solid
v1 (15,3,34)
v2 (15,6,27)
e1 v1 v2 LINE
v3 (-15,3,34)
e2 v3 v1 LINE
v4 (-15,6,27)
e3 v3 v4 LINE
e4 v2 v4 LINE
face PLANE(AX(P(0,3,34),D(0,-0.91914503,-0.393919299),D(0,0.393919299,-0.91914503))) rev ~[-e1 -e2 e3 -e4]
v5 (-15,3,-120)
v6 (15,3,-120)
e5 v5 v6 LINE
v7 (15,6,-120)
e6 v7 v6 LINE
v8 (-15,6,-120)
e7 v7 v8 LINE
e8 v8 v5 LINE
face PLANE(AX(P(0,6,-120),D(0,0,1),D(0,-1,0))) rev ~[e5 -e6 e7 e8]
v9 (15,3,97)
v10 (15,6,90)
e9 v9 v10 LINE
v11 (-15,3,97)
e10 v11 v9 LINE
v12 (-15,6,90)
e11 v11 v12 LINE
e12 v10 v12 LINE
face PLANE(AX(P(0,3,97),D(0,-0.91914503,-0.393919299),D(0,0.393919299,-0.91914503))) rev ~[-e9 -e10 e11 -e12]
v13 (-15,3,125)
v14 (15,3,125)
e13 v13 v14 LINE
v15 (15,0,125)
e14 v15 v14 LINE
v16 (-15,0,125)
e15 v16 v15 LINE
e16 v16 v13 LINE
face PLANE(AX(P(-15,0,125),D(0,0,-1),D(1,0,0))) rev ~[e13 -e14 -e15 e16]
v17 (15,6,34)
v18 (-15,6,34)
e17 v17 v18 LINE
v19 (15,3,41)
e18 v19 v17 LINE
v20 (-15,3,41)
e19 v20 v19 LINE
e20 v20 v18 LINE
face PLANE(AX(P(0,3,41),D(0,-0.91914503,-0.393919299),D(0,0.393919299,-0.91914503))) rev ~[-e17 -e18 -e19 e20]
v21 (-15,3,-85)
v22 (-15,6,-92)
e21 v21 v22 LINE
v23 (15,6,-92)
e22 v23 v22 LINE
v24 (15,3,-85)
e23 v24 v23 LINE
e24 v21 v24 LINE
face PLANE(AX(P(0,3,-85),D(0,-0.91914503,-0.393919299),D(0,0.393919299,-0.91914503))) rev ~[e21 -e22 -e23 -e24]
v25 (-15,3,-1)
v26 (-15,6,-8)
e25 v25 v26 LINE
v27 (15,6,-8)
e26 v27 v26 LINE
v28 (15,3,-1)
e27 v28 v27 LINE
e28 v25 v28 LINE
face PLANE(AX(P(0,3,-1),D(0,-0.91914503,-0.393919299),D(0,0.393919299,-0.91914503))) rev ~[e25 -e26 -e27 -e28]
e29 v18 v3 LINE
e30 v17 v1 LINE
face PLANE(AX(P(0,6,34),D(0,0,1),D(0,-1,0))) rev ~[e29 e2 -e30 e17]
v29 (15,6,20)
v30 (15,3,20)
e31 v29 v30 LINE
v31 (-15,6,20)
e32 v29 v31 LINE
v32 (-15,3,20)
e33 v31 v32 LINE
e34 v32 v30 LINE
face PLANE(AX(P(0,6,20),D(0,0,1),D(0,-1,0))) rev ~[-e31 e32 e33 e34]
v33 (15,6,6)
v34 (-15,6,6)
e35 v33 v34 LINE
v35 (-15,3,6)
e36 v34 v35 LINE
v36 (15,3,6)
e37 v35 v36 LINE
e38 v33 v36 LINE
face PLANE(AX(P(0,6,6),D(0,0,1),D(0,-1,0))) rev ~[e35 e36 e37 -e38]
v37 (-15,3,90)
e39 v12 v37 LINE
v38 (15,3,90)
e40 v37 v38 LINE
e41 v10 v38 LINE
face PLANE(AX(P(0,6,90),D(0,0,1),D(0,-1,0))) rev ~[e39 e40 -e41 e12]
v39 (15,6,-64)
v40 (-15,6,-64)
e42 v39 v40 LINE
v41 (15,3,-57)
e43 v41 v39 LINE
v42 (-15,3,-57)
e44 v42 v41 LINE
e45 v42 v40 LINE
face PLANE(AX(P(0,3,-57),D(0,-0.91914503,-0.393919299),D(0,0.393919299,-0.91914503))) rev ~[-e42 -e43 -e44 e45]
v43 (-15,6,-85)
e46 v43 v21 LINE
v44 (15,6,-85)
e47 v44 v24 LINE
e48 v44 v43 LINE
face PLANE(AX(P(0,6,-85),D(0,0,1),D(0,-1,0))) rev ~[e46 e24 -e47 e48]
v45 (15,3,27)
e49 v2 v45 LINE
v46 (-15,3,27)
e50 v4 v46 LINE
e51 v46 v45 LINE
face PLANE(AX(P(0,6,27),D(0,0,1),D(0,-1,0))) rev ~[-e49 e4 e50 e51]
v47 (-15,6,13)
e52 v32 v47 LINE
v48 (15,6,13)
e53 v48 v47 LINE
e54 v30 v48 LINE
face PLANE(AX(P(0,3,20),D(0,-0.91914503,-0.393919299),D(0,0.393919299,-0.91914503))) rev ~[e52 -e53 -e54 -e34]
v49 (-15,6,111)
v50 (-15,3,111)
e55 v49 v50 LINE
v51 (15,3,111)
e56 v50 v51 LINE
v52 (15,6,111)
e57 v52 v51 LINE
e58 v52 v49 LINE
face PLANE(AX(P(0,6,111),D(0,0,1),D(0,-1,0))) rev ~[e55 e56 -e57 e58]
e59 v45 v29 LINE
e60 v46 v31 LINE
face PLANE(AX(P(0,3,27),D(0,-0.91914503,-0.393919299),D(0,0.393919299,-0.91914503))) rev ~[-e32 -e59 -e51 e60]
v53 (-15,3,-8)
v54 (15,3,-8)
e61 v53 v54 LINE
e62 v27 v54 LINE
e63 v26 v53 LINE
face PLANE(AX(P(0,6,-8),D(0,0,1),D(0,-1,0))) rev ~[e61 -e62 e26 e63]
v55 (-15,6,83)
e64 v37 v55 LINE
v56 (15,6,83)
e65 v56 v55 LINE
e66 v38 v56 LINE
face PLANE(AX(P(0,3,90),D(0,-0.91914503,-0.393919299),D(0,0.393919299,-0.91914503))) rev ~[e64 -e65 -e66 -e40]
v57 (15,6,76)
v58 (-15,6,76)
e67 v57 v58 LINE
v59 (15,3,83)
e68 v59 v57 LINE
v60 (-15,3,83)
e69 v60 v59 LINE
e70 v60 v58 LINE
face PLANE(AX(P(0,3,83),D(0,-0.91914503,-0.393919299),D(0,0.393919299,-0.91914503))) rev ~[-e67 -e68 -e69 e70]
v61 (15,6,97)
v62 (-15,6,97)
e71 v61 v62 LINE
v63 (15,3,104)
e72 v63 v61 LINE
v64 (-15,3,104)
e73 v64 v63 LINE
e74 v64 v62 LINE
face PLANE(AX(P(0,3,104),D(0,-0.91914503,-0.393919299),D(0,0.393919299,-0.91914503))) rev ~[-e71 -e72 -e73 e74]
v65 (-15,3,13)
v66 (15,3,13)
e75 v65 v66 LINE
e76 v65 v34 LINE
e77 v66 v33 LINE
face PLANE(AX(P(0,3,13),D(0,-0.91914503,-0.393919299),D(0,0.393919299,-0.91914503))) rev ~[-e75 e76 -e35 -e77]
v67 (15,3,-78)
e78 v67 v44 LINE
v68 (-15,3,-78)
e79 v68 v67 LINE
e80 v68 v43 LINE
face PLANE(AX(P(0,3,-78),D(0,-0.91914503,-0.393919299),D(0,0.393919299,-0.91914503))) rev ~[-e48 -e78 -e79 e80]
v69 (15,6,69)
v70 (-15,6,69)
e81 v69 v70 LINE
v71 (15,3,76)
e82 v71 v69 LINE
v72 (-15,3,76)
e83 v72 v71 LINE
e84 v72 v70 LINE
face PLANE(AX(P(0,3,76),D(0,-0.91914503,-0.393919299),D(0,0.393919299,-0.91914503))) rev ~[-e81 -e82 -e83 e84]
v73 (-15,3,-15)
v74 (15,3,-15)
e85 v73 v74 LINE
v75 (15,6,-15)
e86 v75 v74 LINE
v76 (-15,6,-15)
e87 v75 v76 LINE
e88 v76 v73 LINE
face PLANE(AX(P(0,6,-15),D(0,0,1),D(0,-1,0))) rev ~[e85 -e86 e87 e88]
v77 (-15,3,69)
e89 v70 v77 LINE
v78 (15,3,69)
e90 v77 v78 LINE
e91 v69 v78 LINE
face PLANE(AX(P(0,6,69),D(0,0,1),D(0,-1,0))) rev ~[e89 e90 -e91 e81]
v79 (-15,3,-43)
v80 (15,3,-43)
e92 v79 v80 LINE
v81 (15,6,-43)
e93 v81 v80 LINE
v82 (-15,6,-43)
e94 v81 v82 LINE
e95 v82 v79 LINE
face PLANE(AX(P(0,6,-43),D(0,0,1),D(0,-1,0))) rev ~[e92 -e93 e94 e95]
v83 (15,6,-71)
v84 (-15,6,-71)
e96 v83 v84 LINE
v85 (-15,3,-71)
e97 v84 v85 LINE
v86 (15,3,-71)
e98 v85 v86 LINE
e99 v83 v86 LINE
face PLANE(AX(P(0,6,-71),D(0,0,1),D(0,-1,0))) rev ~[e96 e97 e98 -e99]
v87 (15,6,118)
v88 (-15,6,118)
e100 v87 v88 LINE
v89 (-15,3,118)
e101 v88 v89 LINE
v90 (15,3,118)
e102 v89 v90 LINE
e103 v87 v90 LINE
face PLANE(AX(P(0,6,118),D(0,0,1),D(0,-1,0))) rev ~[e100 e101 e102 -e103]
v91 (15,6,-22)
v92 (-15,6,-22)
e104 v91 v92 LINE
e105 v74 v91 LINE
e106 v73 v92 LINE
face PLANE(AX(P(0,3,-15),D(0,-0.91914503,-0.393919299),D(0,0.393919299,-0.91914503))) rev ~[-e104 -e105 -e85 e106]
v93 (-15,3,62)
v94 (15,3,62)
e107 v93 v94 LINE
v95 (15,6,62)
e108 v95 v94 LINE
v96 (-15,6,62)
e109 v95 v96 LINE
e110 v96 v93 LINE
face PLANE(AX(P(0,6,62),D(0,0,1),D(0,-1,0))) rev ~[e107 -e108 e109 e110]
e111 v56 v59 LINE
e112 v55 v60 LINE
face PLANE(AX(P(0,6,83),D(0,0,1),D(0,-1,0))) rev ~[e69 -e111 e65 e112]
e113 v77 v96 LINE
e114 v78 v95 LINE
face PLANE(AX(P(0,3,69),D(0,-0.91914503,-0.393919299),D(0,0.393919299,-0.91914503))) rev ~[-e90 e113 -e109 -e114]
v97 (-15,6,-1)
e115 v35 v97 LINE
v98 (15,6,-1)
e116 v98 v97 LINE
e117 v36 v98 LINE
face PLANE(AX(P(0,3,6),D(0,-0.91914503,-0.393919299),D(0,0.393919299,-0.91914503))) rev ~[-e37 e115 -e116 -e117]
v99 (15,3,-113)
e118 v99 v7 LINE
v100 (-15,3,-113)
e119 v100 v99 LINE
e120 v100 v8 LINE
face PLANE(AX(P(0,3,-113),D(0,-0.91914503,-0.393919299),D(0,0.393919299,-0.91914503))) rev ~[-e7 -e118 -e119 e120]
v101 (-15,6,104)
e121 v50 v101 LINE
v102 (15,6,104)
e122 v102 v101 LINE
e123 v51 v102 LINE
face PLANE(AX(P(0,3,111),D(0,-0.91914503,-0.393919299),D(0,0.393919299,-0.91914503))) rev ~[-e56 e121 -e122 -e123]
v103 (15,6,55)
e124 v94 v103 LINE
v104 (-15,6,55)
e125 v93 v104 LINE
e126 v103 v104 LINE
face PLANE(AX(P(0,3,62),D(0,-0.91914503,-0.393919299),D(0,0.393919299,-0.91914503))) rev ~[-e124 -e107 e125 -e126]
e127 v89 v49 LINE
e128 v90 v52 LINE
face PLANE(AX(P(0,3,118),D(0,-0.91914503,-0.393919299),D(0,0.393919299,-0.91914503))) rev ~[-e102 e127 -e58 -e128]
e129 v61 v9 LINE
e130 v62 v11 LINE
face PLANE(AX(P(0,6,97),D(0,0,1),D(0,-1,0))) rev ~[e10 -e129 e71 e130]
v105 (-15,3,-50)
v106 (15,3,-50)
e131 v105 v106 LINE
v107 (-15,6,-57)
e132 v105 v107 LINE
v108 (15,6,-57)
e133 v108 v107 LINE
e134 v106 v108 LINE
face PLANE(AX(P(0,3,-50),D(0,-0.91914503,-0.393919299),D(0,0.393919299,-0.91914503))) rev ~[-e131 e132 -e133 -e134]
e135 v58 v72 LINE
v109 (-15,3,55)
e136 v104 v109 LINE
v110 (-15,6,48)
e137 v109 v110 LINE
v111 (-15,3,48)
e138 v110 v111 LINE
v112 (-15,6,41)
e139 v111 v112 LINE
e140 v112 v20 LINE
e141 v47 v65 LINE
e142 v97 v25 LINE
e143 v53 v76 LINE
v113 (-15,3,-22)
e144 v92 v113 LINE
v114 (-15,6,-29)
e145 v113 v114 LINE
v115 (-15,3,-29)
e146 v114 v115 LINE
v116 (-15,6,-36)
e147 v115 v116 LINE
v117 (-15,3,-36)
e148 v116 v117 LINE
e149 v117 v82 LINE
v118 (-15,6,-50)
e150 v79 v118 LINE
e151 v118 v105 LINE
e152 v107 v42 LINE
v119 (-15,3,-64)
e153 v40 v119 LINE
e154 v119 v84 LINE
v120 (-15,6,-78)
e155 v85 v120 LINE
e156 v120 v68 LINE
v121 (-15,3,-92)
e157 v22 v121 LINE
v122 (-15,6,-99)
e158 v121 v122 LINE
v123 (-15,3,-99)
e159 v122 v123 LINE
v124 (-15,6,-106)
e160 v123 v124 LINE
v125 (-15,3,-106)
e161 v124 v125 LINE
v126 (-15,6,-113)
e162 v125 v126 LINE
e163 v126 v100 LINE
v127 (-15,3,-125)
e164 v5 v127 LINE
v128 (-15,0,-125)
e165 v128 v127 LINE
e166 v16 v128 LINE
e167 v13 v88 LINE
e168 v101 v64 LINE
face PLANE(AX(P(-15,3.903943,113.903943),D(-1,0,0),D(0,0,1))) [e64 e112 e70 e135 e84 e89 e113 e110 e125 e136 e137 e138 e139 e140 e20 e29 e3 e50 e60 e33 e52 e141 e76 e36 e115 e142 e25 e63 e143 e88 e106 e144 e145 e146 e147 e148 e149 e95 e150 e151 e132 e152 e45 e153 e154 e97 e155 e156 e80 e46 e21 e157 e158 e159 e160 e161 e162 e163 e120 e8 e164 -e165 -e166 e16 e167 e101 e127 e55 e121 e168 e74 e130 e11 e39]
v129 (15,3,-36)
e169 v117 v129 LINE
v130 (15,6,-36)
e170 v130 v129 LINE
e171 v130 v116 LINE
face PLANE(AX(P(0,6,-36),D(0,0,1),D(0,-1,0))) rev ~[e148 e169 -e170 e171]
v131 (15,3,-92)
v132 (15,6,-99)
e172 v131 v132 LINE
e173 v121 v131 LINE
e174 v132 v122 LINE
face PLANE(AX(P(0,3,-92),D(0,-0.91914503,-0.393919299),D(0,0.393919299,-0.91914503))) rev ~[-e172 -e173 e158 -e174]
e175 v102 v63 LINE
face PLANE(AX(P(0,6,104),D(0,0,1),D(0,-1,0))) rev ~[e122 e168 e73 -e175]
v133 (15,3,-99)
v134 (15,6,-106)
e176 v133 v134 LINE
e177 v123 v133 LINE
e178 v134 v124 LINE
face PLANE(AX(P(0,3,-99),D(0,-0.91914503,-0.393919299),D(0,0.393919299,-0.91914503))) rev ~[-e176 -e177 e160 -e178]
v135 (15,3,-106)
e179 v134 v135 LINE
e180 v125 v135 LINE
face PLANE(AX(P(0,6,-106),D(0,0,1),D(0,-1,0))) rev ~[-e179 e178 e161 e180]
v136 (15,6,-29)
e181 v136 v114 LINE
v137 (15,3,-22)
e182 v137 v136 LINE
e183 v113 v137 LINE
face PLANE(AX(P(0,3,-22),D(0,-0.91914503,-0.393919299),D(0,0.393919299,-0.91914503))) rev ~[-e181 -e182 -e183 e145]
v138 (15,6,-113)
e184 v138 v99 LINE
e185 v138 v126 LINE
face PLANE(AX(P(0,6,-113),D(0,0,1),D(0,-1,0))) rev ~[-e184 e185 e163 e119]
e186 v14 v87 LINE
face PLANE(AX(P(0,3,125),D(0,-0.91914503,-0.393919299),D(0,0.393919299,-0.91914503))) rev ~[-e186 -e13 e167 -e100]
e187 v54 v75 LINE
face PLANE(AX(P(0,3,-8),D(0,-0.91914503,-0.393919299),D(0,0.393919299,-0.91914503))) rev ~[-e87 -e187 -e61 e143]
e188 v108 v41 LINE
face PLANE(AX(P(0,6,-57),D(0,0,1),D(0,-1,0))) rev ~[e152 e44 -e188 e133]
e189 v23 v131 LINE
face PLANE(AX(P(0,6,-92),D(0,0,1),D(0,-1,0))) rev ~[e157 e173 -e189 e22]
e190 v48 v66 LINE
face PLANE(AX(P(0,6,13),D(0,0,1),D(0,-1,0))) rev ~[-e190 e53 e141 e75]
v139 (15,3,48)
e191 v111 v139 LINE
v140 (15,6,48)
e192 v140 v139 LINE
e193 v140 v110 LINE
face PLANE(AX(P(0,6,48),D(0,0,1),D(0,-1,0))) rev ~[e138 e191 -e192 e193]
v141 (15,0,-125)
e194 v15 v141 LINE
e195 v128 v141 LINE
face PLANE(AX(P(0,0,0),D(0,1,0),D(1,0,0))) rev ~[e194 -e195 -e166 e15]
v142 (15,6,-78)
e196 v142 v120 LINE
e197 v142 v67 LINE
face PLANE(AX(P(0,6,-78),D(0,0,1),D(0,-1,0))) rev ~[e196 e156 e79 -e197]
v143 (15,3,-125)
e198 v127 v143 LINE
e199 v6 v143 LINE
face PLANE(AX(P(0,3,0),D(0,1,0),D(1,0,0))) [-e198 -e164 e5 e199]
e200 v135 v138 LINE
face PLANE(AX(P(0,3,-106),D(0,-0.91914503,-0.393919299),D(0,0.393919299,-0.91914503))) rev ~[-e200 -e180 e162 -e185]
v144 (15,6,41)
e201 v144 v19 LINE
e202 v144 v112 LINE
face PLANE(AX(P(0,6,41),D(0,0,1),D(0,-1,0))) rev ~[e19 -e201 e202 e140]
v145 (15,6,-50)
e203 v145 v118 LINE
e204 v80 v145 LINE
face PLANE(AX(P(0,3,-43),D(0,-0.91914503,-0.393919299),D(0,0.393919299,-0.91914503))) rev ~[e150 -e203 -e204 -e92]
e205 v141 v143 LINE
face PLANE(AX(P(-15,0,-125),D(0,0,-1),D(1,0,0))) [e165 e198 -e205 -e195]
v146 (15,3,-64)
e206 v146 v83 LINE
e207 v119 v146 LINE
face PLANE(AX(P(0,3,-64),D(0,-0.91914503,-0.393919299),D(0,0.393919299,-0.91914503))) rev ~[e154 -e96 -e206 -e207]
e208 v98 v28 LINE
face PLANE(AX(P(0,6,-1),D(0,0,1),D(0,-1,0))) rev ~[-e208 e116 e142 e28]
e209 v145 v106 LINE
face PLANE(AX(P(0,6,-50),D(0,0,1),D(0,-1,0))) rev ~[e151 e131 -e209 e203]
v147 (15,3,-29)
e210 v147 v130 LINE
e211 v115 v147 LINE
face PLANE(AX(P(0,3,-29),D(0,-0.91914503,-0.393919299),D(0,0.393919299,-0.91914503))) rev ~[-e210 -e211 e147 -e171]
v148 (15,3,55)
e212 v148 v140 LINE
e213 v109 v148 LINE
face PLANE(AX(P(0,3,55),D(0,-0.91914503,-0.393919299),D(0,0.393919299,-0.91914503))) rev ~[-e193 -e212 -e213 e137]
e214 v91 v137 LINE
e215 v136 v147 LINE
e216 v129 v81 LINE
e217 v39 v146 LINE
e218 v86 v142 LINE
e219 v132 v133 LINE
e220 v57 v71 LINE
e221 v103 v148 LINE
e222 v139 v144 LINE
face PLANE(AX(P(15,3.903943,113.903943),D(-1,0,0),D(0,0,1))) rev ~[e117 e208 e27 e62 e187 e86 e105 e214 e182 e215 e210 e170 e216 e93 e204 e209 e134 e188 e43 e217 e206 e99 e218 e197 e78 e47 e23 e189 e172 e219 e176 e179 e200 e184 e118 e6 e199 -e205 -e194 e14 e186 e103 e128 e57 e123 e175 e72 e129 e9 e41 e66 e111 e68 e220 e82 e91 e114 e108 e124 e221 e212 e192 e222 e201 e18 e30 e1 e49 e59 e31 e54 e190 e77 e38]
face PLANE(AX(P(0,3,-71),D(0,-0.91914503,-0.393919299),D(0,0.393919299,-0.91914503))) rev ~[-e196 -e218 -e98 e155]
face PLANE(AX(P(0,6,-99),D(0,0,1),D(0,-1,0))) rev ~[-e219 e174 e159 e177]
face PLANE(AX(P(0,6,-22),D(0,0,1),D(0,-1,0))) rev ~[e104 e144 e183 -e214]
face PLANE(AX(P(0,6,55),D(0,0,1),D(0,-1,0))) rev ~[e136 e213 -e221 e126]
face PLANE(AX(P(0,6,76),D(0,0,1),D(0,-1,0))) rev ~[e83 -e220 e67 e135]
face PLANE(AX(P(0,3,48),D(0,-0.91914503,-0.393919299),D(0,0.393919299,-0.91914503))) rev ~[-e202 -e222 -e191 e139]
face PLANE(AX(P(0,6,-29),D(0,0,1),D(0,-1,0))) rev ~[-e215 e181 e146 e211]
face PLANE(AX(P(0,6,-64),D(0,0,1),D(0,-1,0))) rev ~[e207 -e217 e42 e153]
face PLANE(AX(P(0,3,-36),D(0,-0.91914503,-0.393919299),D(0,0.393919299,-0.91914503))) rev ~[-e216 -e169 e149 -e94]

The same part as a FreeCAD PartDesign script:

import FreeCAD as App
import Part
import Sketcher

doc = App.newDocument("Part")
body = doc.addObject("PartDesign::Body", "Body")

# Sketch on XZ plane
sketch1 = body.newObject("Sketcher::SketchObject", "Sketch")
sketch1.AttachmentSupport = (doc.getObject("XZ_Plane"), [""])
sketch1.MapMode = "FlatFace"
sketch1.addGeometry([
    Part.LineSegment(App.Vector(-15, -125, 0), App.Vector(-15, 125, 0)),
    Part.LineSegment(App.Vector(-15, 125, 0), App.Vector(15, 125, 0)),
    Part.LineSegment(App.Vector(15, 125, 0), App.Vector(15, -125, 0)),
    Part.LineSegment(App.Vector(15, -125, 0), App.Vector(-15, -125, 0)),
], False)
sketch1.addConstraint([
    Sketcher.Constraint("Coincident", 0, 2, 1, 1),
    Sketcher.Constraint("Coincident", 1, 2, 2, 1),
    Sketcher.Constraint("Coincident", 2, 2, 3, 1),
    Sketcher.Constraint("Coincident", 3, 2, 0, 1),
    Sketcher.Constraint("Vertical", 0),
    Sketcher.Constraint("Horizontal", 1),
    Sketcher.Constraint("Vertical", 2),
    Sketcher.Constraint("Horizontal", 3),
    Sketcher.Constraint("Symmetric", 0, 2, 2, 2, -1, 1),
    Sketcher.Constraint("DistanceX", 1, 1, 1, 2, 30.0),
    Sketcher.Constraint("DistanceY", 0, 1, 0, 2, 250.0),
])
pad1 = body.newObject("PartDesign::Pad", "Pad")
pad1.Profile = sketch1
pad1.Length = 3
pad1.Reversed = True

# Sketch on YZ plane
sketch2 = body.newObject("Sketcher::SketchObject", "Sketch001")
sketch2.AttachmentSupport = (doc.getObject("YZ_Plane"), [""])
sketch2.MapMode = "FlatFace"
sketch2.addGeometry([
    Part.LineSegment(App.Vector(6, 118, 0), App.Vector(3, 125, 0)),
    Part.LineSegment(App.Vector(3, 125, 0), App.Vector(3, 118, 0)),
    Part.LineSegment(App.Vector(3, 118, 0), App.Vector(6, 118, 0)),
], False)
sketch2.addConstraint([
    Sketcher.Constraint("Coincident", 0, 2, 1, 1),
    Sketcher.Constraint("Coincident", 1, 2, 2, 1),
    Sketcher.Constraint("Coincident", 2, 2, 0, 1),
    Sketcher.Constraint("Vertical", 1),
    Sketcher.Constraint("Horizontal", 2),
    Sketcher.Constraint("DistanceX", 2, 1, 2, 2, 3.0),
    Sketcher.Constraint("DistanceY", 1, 2, 1, 1, 7.0),
    Sketcher.Constraint("DistanceX", -1, 1, 0, 2, 3.0),
    Sketcher.Constraint("DistanceY", -1, 1, 0, 2, 125.0),
])
pad2 = body.newObject("PartDesign::Pad", "Pad001")
pad2.Profile = sketch2
pad2.Length = 30
pad2.Midplane = True
doc.recompute()

linearpattern = body.newObject("PartDesign::LinearPattern", "LinearPattern")
linearpattern.Originals = [pad2]
linearpattern.Direction = (doc.getObject("Z_Axis"), [""])
linearpattern.Mode = "offset"
linearpattern.Offset = 7
linearpattern.Occurrences = 35
linearpattern.Reversed = True
body.Tip = linearpattern

doc.recompute()
